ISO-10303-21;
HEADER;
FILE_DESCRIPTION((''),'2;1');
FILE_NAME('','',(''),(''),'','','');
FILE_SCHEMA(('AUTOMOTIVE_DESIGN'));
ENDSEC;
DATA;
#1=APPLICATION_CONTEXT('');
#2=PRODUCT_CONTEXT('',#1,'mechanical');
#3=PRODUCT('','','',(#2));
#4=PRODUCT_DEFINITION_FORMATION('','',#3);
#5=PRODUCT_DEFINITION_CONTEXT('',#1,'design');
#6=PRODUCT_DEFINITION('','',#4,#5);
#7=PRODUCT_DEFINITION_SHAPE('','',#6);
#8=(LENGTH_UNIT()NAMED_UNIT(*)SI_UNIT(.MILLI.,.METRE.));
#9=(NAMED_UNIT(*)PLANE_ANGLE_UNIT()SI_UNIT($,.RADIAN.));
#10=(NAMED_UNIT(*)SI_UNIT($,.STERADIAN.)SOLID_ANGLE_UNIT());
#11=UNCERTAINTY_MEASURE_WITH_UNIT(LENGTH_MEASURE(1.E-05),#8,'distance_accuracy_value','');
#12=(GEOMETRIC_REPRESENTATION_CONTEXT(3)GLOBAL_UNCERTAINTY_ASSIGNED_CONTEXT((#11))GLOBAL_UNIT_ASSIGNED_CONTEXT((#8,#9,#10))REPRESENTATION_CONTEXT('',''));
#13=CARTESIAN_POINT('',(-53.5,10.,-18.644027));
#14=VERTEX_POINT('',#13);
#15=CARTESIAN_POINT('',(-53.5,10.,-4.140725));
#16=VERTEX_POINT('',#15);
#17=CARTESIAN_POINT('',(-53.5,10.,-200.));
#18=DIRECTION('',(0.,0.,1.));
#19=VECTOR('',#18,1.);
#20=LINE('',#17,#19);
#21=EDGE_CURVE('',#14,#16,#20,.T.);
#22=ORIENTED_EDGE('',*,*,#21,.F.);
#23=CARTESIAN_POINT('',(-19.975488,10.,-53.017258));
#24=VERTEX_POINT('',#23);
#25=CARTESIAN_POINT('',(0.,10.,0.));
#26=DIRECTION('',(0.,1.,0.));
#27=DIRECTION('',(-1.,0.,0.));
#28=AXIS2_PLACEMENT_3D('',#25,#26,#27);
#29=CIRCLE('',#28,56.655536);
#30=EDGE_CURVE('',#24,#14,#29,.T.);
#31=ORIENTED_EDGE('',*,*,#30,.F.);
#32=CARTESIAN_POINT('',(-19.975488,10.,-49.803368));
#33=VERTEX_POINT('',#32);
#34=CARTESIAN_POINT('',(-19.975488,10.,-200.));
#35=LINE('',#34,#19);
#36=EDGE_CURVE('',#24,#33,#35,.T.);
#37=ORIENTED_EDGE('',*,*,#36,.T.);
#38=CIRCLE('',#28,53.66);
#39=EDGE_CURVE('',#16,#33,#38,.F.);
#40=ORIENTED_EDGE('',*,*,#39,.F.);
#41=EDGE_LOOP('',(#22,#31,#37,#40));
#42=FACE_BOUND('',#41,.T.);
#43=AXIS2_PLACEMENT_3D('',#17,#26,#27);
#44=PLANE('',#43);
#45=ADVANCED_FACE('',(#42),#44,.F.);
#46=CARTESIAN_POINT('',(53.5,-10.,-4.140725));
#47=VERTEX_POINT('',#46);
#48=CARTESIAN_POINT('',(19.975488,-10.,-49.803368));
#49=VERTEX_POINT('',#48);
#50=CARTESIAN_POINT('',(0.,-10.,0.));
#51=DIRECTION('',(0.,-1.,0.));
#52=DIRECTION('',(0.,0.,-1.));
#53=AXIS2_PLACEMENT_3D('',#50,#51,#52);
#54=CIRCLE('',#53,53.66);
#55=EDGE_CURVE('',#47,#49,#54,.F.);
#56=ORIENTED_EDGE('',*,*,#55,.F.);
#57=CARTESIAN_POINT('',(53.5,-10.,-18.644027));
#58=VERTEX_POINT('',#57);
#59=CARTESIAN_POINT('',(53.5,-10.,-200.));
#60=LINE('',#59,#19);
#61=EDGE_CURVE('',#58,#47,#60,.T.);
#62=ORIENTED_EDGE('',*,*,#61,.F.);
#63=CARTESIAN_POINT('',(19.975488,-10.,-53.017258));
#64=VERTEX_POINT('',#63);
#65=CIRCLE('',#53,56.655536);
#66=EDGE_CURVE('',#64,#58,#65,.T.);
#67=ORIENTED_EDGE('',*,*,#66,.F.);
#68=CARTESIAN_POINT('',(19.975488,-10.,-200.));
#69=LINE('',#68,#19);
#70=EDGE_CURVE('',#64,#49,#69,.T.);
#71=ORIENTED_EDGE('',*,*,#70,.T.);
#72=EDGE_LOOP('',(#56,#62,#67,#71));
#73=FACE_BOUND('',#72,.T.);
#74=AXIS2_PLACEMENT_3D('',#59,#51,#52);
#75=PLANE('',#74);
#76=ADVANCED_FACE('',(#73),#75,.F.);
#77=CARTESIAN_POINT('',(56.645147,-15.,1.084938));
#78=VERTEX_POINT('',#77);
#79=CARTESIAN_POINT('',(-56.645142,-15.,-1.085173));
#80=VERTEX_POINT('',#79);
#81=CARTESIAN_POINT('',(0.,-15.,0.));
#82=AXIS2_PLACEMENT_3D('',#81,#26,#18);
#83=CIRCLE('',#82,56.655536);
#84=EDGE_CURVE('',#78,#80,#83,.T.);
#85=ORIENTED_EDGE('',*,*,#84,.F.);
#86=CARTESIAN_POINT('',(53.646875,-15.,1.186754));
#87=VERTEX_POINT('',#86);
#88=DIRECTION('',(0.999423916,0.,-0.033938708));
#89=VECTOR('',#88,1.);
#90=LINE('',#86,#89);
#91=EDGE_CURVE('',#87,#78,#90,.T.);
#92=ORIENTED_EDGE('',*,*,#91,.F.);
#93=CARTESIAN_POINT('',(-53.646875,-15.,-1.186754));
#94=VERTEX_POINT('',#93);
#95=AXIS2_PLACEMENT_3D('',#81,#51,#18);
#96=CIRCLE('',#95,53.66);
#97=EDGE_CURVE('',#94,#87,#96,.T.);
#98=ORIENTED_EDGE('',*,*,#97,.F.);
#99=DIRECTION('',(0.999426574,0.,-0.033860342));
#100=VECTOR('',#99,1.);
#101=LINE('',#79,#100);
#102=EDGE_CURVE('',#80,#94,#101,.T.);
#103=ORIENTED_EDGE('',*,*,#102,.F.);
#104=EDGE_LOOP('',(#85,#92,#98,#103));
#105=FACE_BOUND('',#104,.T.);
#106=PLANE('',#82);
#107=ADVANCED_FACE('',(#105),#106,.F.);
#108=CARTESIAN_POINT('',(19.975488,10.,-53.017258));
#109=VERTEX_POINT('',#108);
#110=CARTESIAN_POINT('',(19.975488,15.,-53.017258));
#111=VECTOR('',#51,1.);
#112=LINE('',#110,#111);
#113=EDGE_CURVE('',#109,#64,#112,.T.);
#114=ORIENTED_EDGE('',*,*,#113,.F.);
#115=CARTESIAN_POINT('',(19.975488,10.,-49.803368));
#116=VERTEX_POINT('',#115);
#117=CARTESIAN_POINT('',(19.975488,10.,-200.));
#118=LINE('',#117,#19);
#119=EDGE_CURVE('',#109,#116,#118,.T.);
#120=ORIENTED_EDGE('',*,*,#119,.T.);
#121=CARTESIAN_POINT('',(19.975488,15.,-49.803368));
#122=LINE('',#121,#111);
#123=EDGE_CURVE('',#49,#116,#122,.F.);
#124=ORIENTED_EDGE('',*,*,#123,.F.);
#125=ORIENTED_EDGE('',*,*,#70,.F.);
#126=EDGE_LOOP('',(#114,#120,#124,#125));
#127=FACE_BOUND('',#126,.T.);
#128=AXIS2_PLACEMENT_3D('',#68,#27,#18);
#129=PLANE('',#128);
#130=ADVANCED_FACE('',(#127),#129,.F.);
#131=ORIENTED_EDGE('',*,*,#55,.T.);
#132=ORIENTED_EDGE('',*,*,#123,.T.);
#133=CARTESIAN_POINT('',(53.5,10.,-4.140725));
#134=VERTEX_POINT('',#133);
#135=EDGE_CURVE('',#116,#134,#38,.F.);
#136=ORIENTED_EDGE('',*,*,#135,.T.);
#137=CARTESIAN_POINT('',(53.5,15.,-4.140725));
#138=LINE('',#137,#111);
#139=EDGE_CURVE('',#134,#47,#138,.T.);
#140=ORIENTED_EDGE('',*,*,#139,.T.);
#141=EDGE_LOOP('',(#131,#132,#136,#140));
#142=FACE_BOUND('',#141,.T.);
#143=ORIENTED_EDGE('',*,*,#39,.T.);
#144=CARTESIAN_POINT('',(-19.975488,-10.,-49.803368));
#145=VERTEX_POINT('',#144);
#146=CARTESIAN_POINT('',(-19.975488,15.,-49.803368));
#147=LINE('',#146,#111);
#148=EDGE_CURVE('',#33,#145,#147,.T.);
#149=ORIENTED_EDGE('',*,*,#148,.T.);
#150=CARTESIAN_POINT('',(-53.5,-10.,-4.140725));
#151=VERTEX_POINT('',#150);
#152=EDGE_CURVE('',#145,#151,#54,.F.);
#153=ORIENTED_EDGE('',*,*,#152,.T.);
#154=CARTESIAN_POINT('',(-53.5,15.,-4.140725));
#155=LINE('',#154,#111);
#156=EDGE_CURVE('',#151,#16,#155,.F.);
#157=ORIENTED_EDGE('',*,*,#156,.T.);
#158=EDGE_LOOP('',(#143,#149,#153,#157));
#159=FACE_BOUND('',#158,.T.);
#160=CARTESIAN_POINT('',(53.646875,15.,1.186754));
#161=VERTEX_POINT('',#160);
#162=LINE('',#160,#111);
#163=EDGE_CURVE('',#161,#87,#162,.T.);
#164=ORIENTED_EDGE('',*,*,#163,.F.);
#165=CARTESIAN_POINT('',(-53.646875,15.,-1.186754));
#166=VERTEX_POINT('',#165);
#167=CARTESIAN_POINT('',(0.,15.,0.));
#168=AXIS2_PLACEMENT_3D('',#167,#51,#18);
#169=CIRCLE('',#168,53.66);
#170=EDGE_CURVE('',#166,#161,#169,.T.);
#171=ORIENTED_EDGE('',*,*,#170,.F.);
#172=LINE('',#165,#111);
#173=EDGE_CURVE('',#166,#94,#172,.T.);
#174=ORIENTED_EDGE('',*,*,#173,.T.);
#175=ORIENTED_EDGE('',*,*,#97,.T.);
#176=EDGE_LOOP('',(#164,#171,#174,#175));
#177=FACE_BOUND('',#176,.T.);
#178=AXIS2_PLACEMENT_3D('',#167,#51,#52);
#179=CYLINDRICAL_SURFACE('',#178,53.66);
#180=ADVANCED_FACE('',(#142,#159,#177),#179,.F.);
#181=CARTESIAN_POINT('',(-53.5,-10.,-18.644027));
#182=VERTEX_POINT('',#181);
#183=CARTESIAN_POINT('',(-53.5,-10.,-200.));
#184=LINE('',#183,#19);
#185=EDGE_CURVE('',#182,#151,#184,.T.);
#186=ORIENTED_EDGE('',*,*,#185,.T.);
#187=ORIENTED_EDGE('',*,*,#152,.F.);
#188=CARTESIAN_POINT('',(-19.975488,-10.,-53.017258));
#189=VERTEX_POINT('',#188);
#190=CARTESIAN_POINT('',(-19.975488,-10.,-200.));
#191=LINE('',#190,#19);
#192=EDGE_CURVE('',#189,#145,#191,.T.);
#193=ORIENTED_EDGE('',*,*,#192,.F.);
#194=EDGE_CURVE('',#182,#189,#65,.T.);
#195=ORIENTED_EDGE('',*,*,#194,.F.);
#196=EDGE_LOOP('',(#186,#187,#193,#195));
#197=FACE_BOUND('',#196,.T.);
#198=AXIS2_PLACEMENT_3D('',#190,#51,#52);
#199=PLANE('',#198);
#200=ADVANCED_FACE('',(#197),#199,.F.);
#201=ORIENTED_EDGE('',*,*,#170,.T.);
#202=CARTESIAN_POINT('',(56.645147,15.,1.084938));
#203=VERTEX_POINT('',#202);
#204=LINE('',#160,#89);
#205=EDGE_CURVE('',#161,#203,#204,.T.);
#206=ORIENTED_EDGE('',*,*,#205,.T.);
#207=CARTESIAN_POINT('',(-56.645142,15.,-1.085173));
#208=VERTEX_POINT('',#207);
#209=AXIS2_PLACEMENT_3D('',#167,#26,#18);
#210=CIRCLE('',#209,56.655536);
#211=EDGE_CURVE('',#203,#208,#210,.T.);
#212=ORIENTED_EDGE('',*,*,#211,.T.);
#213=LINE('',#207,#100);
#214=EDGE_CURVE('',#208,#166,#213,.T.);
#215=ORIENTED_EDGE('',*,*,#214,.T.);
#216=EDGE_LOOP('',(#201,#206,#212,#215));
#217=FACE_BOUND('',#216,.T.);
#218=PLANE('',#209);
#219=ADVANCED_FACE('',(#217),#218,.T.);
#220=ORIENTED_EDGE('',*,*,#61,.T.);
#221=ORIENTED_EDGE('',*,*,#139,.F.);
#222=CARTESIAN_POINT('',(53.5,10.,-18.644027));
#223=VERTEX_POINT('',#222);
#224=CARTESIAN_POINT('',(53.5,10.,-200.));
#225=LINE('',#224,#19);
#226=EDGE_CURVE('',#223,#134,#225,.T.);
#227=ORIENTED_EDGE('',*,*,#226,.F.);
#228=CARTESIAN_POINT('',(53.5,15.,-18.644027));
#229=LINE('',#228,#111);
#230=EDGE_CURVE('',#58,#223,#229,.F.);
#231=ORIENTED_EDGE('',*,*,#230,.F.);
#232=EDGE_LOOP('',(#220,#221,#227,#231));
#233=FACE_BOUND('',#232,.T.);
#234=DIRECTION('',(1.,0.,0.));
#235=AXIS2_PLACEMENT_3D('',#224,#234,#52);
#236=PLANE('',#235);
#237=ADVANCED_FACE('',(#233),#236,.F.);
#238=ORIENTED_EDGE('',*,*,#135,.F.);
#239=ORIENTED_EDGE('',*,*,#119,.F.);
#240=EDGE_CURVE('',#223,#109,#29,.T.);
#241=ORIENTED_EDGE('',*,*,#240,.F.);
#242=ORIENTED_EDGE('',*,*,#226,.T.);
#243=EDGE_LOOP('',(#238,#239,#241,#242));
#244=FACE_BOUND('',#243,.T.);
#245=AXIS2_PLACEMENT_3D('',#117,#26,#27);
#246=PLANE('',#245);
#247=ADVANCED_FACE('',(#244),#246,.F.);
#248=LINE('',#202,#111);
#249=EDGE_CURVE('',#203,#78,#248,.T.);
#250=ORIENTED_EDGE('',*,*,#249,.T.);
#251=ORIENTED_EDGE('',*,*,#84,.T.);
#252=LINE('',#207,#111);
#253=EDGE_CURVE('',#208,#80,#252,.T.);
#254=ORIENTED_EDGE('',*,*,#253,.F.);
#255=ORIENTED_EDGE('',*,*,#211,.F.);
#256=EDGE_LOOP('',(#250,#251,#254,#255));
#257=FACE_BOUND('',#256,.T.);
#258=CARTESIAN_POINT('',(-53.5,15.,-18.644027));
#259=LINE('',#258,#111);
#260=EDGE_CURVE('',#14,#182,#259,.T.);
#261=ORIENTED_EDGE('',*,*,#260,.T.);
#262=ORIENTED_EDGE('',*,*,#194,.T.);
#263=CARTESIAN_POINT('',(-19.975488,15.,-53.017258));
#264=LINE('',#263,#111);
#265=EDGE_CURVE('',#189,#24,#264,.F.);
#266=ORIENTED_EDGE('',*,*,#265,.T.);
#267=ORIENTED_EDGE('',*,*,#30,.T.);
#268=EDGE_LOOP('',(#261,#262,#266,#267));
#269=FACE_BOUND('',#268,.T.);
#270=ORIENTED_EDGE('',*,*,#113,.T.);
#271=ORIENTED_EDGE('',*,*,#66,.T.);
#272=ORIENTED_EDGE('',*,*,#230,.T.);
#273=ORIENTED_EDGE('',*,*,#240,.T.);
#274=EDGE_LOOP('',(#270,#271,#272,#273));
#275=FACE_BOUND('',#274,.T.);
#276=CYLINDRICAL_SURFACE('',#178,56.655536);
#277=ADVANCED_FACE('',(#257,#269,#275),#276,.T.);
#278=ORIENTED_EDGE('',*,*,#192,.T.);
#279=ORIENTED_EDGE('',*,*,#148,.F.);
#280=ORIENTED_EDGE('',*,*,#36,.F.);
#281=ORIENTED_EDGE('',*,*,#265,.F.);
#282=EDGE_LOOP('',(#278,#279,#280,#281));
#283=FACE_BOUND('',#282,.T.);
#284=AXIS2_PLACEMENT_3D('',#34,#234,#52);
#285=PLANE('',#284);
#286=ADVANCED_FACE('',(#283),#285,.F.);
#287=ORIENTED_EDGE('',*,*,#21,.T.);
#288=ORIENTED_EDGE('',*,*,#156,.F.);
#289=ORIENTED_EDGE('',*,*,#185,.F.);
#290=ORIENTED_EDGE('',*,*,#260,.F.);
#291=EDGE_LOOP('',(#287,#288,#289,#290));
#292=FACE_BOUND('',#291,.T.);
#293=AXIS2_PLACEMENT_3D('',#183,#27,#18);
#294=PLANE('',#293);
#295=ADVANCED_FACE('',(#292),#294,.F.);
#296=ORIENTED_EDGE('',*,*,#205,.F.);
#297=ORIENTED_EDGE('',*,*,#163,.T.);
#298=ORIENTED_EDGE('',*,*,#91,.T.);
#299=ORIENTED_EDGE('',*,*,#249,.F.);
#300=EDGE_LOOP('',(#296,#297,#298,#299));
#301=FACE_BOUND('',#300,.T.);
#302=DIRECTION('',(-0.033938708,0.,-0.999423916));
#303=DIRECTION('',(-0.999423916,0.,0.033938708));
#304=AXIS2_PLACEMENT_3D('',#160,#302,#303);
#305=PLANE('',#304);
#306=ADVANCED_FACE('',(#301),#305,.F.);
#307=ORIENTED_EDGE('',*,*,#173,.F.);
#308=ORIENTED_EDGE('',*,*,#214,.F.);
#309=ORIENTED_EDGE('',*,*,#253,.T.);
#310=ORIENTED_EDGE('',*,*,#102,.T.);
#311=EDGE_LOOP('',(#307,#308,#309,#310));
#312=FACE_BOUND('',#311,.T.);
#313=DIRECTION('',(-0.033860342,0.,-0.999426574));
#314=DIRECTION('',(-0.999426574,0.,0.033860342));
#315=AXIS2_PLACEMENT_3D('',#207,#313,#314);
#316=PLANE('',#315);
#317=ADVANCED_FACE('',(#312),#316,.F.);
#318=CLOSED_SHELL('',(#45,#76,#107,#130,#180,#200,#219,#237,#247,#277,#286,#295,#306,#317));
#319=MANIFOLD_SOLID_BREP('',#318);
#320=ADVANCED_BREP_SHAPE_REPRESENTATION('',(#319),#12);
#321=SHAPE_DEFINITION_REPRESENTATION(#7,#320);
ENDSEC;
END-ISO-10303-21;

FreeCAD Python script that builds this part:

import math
import FreeCAD as App
import Part
import Sketcher

V = App.Vector


def add_polygon(sketch, points):
    """Adds a closed chain of lines whose ends are joined by coincident constraints."""
    first, n = sketch.GeometryCount, len(points)
    for a, b in zip(points, points[1:] + points[:1]):
        sketch.addGeometry(Part.LineSegment(App.Vector(*a, 0), App.Vector(*b, 0)), False)
    for i in range(n):
        sketch.addConstraint(Sketcher.Constraint("Coincident", first + i, 2, first + (i + 1) % n, 1))

doc = App.newDocument("Part")
body = doc.addObject("PartDesign::Body", "Body")

# Sketch on XZ plane
sketch1 = body.newObject("Sketcher::SketchObject", "Sketch")
sketch1.AttachmentSupport = (doc.getObject("XZ_Plane"), [""])
sketch1.MapMode = "FlatFace"
sketch1.addGeometry(Part.LineSegment(V(-56.645142, -1.085173, 0), V(-53.646875, -1.186754, 0)), False)
sketch1.addGeometry(Part.ArcOfCircle(Part.Circle(V(0, 0, 0), V(0, 0, 1), 53.66), math.radians(-178.732733), math.radians(1.267267)), False)
sketch1.addGeometry(Part.LineSegment(V(53.646875, 1.186754, 0), V(56.645147, 1.084938, 0)), False)
sketch1.addGeometry(Part.ArcOfCircle(Part.Circle(V(0, 0, 0), V(0, 0, 1), 56.655536), math.radians(-178.902496), math.radians(1.097266)), False)
sketch1.addConstraint(Sketcher.Constraint("Coincident", 0, 2, 1, 1))
sketch1.addConstraint(Sketcher.Constraint("Coincident", 1, 2, 2, 1))
sketch1.addConstraint(Sketcher.Constraint("Coincident", 2, 2, 3, 2))
sketch1.addConstraint(Sketcher.Constraint("Coincident", 3, 1, 0, 1))
sketch1.addConstraint(Sketcher.Constraint("Coincident", 1, 3, -1, 1))
sketch1.addConstraint(Sketcher.Constraint("Coincident", 3, 3, -1, 1))
sketch1.addConstraint(Sketcher.Constraint("Radius", 1, 53.66))
sketch1.addConstraint(Sketcher.Constraint("Distance", 2, 3.0))
sketch1.addConstraint(Sketcher.Constraint("Radius", 3, 56.655536))
sketch1.addConstraint(Sketcher.Constraint("DistanceX", 0, 2, 1, 2, 107.29375))
sketch1.addConstraint(Sketcher.Constraint("DistanceY", 0, 2, 3, 1, 0.101581))
sketch1.addConstraint(Sketcher.Constraint("DistanceX", 0, 2, -1, 1, 53.646875))
pad1 = body.newObject("PartDesign::Pad", "Pad")
pad1.Profile = sketch1
pad1.Length = 30
pad1.Midplane = True

# Sketch on XY plane
sketch2 = body.newObject("Sketcher::SketchObject", "Sketch001")
sketch2.AttachmentSupport = (doc.getObject("XY_Plane"), [""])
sketch2.MapMode = "FlatFace"
add_polygon(sketch2, [(-53.5, 10), (-53.5, -10), (-19.975488, -10), (-19.975488, 10)])  # lines 0-3
add_polygon(sketch2, [(19.975488, 10), (19.975488, -10), (53.5, -10), (53.5, 10)])  # lines 4-7
sketch2.addConstraint(Sketcher.Constraint("Vertical", 0))
sketch2.addConstraint(Sketcher.Constraint("Horizontal", 1))
sketch2.addConstraint(Sketcher.Constraint("Vertical", 2))
sketch2.addConstraint(Sketcher.Constraint("Horizontal", 3))
sketch2.addConstraint(Sketcher.Constraint("Vertical", 4))
sketch2.addConstraint(Sketcher.Constraint("Horizontal", 5))
sketch2.addConstraint(Sketcher.Constraint("Vertical", 6))
sketch2.addConstraint(Sketcher.Constraint("Horizontal", 7))
sketch2.addConstraint(Sketcher.Constraint("Symmetric", 2, 2, 4, 2, -1, 1))
sketch2.addConstraint(Sketcher.Constraint("Symmetric", 0, 2, 6, 2, -1, 1))
sketch2.addConstraint(Sketcher.Constraint("Horizontal", 1, 2, 4, 2))
sketch2.addConstraint(Sketcher.Constraint("DistanceY", 0, 2, 0, 1, 20.0))
sketch2.addConstraint(Sketcher.Constraint("DistanceX", 0, 2, 5, 2, 107.0))
sketch2.addConstraint(Sketcher.Constraint("DistanceX", 1, 1, 1, 2, 33.524512))
pocket1 = body.newObject("PartDesign::Pocket", "Pocket")
pocket1.Profile = sketch2
pocket1.Length = 200

doc.recompute()
